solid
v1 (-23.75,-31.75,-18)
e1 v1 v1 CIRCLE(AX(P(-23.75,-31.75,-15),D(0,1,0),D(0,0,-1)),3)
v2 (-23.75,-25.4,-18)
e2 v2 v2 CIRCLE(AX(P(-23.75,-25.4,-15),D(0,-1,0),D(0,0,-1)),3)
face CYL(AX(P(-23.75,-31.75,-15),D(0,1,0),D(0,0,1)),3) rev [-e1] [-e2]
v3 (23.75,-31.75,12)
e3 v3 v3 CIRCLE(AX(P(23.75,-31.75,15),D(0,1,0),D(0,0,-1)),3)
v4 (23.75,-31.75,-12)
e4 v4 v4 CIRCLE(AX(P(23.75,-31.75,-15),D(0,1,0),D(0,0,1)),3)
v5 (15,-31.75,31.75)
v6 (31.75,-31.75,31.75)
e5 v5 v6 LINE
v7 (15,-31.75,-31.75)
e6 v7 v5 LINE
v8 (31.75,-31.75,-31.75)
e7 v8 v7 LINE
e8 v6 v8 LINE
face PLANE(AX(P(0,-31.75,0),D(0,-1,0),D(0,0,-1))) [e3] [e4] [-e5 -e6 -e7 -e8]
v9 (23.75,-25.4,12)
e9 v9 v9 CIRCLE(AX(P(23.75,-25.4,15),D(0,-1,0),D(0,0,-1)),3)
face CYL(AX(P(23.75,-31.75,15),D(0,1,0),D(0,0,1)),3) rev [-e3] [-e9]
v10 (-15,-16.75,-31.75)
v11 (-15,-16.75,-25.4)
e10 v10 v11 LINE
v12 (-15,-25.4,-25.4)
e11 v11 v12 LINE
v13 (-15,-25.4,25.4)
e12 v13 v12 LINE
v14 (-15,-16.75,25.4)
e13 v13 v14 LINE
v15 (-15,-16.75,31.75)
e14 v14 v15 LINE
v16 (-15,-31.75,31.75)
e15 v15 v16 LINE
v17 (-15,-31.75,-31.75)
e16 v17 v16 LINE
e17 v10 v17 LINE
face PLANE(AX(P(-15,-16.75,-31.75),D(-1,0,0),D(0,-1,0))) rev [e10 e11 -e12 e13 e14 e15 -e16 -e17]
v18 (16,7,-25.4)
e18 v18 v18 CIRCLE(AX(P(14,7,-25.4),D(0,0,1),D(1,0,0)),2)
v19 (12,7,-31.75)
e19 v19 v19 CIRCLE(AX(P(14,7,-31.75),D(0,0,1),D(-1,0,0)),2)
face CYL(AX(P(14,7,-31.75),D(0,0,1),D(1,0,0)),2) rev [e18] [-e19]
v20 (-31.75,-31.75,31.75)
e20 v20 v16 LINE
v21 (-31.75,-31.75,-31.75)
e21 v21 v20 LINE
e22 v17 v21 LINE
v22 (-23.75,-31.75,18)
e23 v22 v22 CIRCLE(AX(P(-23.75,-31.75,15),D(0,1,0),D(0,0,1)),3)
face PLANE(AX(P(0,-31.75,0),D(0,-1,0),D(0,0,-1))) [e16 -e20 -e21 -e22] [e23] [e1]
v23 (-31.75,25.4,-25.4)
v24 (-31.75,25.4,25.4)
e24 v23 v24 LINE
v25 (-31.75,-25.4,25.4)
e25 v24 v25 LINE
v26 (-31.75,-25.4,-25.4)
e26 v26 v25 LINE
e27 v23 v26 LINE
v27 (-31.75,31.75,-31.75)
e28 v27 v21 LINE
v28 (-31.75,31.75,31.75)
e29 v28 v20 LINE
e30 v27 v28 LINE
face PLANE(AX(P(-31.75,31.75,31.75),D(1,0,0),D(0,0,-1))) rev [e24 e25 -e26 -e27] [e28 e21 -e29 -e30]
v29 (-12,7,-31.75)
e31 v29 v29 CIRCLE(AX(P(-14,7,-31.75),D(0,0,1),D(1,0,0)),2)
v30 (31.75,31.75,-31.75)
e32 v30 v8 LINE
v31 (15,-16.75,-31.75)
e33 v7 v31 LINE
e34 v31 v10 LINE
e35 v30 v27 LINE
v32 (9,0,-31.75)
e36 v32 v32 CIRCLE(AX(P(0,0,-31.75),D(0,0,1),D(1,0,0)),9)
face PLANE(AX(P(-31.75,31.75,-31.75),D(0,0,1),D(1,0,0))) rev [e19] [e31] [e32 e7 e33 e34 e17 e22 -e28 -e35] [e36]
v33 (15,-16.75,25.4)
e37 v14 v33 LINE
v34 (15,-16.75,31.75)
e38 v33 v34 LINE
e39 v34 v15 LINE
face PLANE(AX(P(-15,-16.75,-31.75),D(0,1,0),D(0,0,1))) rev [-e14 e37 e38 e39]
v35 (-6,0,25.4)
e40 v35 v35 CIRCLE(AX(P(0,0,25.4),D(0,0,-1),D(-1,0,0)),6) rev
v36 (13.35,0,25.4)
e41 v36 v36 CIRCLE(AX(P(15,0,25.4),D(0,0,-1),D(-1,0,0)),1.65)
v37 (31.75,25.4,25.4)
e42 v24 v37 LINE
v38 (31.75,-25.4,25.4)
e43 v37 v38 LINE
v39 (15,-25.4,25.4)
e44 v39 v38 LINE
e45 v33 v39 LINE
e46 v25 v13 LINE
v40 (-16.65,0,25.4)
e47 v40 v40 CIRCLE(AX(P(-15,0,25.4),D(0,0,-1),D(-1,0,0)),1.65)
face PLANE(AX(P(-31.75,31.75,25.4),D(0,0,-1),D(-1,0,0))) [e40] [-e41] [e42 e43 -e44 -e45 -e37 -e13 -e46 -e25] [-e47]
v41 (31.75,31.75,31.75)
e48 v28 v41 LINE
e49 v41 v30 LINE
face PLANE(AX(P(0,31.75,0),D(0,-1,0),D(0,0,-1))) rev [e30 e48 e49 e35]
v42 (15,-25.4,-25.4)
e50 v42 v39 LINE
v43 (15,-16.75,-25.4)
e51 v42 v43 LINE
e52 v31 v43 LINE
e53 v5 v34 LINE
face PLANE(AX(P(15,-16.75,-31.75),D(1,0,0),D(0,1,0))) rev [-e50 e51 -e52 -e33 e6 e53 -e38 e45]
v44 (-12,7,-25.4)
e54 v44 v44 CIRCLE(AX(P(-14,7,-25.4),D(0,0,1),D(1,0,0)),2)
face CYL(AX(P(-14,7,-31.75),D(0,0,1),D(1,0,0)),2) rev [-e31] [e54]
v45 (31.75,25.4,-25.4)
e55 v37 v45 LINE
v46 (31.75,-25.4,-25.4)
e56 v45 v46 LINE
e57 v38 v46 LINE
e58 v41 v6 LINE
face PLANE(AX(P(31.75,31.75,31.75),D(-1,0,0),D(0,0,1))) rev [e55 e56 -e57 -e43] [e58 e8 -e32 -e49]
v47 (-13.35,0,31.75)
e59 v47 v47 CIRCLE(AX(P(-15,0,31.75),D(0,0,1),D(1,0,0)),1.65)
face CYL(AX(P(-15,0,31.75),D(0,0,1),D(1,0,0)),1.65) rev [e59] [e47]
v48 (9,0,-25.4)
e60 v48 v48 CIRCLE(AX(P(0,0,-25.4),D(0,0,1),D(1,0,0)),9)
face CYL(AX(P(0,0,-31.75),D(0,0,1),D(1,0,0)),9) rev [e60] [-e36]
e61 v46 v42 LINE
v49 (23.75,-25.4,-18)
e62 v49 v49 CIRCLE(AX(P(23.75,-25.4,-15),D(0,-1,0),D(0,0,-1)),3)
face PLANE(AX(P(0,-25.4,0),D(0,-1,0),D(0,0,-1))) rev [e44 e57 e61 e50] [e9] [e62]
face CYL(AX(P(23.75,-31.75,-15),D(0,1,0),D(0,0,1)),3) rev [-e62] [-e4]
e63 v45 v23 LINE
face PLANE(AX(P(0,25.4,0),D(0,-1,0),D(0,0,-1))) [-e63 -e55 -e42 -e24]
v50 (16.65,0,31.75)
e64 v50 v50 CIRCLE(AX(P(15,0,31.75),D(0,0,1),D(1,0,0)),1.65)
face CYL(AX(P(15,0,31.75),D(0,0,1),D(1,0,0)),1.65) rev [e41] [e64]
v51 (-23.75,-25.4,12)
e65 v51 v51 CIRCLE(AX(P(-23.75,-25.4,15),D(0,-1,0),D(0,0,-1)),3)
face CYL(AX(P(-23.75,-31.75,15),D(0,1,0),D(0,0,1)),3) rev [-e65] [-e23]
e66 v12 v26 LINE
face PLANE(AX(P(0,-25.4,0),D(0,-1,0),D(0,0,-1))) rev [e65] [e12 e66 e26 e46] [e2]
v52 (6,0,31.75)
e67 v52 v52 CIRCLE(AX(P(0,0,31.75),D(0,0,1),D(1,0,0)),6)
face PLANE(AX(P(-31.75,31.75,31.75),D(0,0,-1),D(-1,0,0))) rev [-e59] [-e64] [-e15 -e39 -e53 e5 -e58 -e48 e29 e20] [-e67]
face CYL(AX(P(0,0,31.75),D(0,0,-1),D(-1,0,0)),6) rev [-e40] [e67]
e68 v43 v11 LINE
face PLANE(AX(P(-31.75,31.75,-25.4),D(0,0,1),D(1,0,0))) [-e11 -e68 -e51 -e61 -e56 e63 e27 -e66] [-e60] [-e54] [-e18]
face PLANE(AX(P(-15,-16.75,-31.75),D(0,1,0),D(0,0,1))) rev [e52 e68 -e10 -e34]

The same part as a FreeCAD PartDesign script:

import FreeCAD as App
import Part
import Sketcher


def faces_at(feature, points):
    """Names of the faces that lie closest to the given points."""
    faces = feature.Shape.Faces
    near = lambda p: min(range(len(faces)), key=lambda i: faces[i].distToShape(Part.Vertex(*p))[0])
    return sorted({f"Face{near(p) + 1}" for p in points})


def add_polygon(sketch, points):
    """Adds a closed chain of lines whose ends are joined by coincident constraints."""
    first, n = sketch.GeometryCount, len(points)
    for a, b in zip(points, points[1:] + points[:1]):
        sketch.addGeometry(Part.LineSegment(App.Vector(*a, 0), App.Vector(*b, 0)), False)
    for i in range(n):
        sketch.addConstraint(Sketcher.Constraint("Coincident", first + i, 2, first + (i + 1) % n, 1))

doc = App.newDocument("Part")
body = doc.addObject("PartDesign::Body", "Body")

# Sketch on XZ plane
sketch1 = body.newObject("Sketcher::SketchObject", "Sketch")
sketch1.AttachmentSupport = (doc.getObject("XZ_Plane"), [""])
sketch1.MapMode = "FlatFace"
add_polygon(sketch1, [(-31.75, -31.75), (-31.75, 31.75), (31.75, 31.75), (31.75, -31.75)])  # lines 0-3
sketch1.addConstraint([
    Sketcher.Constraint("Vertical", 0),
    Sketcher.Constraint("Horizontal", 1),
    Sketcher.Constraint("Vertical", 2),
    Sketcher.Constraint("Horizontal", 3),
    Sketcher.Constraint("Symmetric", 0, 2, 2, 2, -1, 1),
    Sketcher.Constraint("Equal", 3, 0),
    Sketcher.Constraint("DistanceX", 1, 1, 1, 2, 63.5),
])
pad1 = body.newObject("PartDesign::Pad", "Pad")
pad1.Profile = sketch1
pad1.Length = 63.5
pad1.Midplane = True
doc.recompute()

thickness = body.newObject("PartDesign::Thickness", "Thickness")
thickness.Base = (pad1, faces_at(pad1, [(-31.75, 0, 0), (31.75, 0, 0)]))
thickness.Value = 6.35
thickness.Reversed = True
thickness.Join = "Intersection"

# Sketch on XY plane
sketch2 = body.newObject("Sketcher::SketchObject", "Sketch001")
sketch2.AttachmentSupport = (doc.getObject("XY_Plane"), [""])
sketch2.MapMode = "FlatFace"
add_polygon(sketch2, [(-15, -16.75), (-15, -31.75), (15, -31.75), (15, -16.75)])  # lines 0-3
sketch2.addConstraint([
    Sketcher.Constraint("Vertical", 0),
    Sketcher.Constraint("Horizontal", 1),
    Sketcher.Constraint("Vertical", 2),
    Sketcher.Constraint("Horizontal", 3),
    Sketcher.Constraint("DistanceX", 1, 1, 1, 2, 30.0),
    Sketcher.Constraint("DistanceY", 0, 2, 0, 1, 15.0),
    Sketcher.Constraint("DistanceX", 0, 2, -1, 1, 15.0),
    Sketcher.Constraint("DistanceY", 0, 2, -1, 1, 31.75),
])
pocket1 = body.newObject("PartDesign::Pocket", "Pocket")
pocket1.Profile = sketch2
pocket1.Type = "ThroughAll"
pocket1.Midplane = True

# Sketch on XY plane
sketch3 = body.newObject("Sketcher::SketchObject", "Sketch002")
sketch3.AttachmentSupport = (doc.getObject("XY_Plane"), [""])
sketch3.MapMode = "FlatFace"
sketch3.addGeometry(Part.Circle(App.Vector(0, 0, 0), App.Vector(0, 0, 1), 6), False)
sketch3.addConstraint([
    Sketcher.Constraint("Coincident", 0, 3, -1, 1),
    Sketcher.Constraint("Diameter", 0, 12.0),
])
pocket2 = body.newObject("PartDesign::Pocket", "Pocket001")
pocket2.Profile = sketch3
pocket2.Type = "ThroughAll"
pocket2.Reversed = True

# Sketch on XY plane
sketch4 = body.newObject("Sketcher::SketchObject", "Sketch003")
sketch4.AttachmentSupport = (doc.getObject("XY_Plane"), [""])
sketch4.MapMode = "FlatFace"
sketch4.AttachmentOffset = App.Placement(App.Vector(0, 0, 31.75), App.Rotation())
sketch4.addGeometry([
    Part.Circle(App.Vector(-15, 0, 0), App.Vector(0, 0, 1), 1.65),
    Part.Circle(App.Vector(15, 0, 0), App.Vector(0, 0, 1), 1.65),
], False)
sketch4.addConstraint([
    Sketcher.Constraint("Equal", 0, 1),
    Sketcher.Constraint("Symmetric", 0, 3, 1, 3, -1, 1),
    Sketcher.Constraint("PointOnObject", 0, 3, -1),
    Sketcher.Constraint("Diameter", 0, 3.3),
    Sketcher.Constraint("DistanceX", 0, 3, -1, 1, 15.0),
])
doc.recompute()
hole = body.newObject("PartDesign::Hole", "Hole")
hole.Profile = sketch4
hole.ThreadType = "None"
hole.Diameter = 3.3
hole.DepthType = "Dimension"
hole.Depth = 6.35
hole.DrillPoint = "Flat"

# Sketch on XY plane
sketch5 = body.newObject("Sketcher::SketchObject", "Sketch004")
sketch5.AttachmentSupport = (doc.getObject("XY_Plane"), [""])
sketch5.MapMode = "FlatFace"
sketch5.addGeometry([
    Part.Circle(App.Vector(0, 0, 0), App.Vector(0, 0, 1), 9),
    Part.Circle(App.Vector(-14, 7, 0), App.Vector(0, 0, 1), 2),
    Part.Circle(App.Vector(14, 7, 0), App.Vector(0, 0, 1), 2),
], False)
sketch5.addConstraint([
    Sketcher.Constraint("Coincident", 0, 3, -1, 1),
    Sketcher.Constraint("Equal", 1, 2),
    Sketcher.Constraint("Symmetric", 1, 3, 2, 3, -2),
    Sketcher.Constraint("Diameter", 0, 18.0),
    Sketcher.Constraint("Diameter", 1, 4.0),
    Sketcher.Constraint("DistanceX", 1, 3, -1, 1, 14.0),
    Sketcher.Constraint("DistanceY", -1, 1, 1, 3, 7.0),
])
pocket3 = body.newObject("PartDesign::Pocket", "Pocket002")
pocket3.Profile = sketch5
pocket3.Type = "ThroughAll"

# Sketch on XZ plane
sketch6 = body.newObject("Sketcher::SketchObject", "Sketch005")
sketch6.AttachmentSupport = (doc.getObject("XZ_Plane"), [""])
sketch6.MapMode = "FlatFace"
sketch6.addGeometry([
    Part.Circle(App.Vector(-23.75, 15, 0), App.Vector(0, 0, 1), 3),
    Part.Circle(App.Vector(23.75, 15, 0), App.Vector(0, 0, 1), 3),
    Part.Circle(App.Vector(23.75, -15, 0), App.Vector(0, 0, 1), 3),
    Part.Circle(App.Vector(-23.75, -15, 0), App.Vector(0, 0, 1), 3),
], False)
sketch6.addConstraint([
    Sketcher.Constraint("Equal", 0, 1),
    Sketcher.Constraint("Equal", 1, 2),
    Sketcher.Constraint("Equal", 2, 3),
    Sketcher.Constraint("Symmetric", 0, 3, 2, 3, -1, 1),
    Sketcher.Constraint("Symmetric", 1, 3, 3, 3, -1, 1),
    Sketcher.Constraint("Symmetric", 0, 3, 1, 3, -2),
    Sketcher.Constraint("Diameter", 0, 6.0),
    Sketcher.Constraint("DistanceY", -1, 1, 0, 3, 15.0),
    Sketcher.Constraint("DistanceX", 0, 3, 1, 3, 47.5),
])
pocket4 = body.newObject("PartDesign::Pocket", "Pocket003")
pocket4.Profile = sketch6
pocket4.Type = "ThroughAll"
pocket4.Reversed = True

doc.recompute()
